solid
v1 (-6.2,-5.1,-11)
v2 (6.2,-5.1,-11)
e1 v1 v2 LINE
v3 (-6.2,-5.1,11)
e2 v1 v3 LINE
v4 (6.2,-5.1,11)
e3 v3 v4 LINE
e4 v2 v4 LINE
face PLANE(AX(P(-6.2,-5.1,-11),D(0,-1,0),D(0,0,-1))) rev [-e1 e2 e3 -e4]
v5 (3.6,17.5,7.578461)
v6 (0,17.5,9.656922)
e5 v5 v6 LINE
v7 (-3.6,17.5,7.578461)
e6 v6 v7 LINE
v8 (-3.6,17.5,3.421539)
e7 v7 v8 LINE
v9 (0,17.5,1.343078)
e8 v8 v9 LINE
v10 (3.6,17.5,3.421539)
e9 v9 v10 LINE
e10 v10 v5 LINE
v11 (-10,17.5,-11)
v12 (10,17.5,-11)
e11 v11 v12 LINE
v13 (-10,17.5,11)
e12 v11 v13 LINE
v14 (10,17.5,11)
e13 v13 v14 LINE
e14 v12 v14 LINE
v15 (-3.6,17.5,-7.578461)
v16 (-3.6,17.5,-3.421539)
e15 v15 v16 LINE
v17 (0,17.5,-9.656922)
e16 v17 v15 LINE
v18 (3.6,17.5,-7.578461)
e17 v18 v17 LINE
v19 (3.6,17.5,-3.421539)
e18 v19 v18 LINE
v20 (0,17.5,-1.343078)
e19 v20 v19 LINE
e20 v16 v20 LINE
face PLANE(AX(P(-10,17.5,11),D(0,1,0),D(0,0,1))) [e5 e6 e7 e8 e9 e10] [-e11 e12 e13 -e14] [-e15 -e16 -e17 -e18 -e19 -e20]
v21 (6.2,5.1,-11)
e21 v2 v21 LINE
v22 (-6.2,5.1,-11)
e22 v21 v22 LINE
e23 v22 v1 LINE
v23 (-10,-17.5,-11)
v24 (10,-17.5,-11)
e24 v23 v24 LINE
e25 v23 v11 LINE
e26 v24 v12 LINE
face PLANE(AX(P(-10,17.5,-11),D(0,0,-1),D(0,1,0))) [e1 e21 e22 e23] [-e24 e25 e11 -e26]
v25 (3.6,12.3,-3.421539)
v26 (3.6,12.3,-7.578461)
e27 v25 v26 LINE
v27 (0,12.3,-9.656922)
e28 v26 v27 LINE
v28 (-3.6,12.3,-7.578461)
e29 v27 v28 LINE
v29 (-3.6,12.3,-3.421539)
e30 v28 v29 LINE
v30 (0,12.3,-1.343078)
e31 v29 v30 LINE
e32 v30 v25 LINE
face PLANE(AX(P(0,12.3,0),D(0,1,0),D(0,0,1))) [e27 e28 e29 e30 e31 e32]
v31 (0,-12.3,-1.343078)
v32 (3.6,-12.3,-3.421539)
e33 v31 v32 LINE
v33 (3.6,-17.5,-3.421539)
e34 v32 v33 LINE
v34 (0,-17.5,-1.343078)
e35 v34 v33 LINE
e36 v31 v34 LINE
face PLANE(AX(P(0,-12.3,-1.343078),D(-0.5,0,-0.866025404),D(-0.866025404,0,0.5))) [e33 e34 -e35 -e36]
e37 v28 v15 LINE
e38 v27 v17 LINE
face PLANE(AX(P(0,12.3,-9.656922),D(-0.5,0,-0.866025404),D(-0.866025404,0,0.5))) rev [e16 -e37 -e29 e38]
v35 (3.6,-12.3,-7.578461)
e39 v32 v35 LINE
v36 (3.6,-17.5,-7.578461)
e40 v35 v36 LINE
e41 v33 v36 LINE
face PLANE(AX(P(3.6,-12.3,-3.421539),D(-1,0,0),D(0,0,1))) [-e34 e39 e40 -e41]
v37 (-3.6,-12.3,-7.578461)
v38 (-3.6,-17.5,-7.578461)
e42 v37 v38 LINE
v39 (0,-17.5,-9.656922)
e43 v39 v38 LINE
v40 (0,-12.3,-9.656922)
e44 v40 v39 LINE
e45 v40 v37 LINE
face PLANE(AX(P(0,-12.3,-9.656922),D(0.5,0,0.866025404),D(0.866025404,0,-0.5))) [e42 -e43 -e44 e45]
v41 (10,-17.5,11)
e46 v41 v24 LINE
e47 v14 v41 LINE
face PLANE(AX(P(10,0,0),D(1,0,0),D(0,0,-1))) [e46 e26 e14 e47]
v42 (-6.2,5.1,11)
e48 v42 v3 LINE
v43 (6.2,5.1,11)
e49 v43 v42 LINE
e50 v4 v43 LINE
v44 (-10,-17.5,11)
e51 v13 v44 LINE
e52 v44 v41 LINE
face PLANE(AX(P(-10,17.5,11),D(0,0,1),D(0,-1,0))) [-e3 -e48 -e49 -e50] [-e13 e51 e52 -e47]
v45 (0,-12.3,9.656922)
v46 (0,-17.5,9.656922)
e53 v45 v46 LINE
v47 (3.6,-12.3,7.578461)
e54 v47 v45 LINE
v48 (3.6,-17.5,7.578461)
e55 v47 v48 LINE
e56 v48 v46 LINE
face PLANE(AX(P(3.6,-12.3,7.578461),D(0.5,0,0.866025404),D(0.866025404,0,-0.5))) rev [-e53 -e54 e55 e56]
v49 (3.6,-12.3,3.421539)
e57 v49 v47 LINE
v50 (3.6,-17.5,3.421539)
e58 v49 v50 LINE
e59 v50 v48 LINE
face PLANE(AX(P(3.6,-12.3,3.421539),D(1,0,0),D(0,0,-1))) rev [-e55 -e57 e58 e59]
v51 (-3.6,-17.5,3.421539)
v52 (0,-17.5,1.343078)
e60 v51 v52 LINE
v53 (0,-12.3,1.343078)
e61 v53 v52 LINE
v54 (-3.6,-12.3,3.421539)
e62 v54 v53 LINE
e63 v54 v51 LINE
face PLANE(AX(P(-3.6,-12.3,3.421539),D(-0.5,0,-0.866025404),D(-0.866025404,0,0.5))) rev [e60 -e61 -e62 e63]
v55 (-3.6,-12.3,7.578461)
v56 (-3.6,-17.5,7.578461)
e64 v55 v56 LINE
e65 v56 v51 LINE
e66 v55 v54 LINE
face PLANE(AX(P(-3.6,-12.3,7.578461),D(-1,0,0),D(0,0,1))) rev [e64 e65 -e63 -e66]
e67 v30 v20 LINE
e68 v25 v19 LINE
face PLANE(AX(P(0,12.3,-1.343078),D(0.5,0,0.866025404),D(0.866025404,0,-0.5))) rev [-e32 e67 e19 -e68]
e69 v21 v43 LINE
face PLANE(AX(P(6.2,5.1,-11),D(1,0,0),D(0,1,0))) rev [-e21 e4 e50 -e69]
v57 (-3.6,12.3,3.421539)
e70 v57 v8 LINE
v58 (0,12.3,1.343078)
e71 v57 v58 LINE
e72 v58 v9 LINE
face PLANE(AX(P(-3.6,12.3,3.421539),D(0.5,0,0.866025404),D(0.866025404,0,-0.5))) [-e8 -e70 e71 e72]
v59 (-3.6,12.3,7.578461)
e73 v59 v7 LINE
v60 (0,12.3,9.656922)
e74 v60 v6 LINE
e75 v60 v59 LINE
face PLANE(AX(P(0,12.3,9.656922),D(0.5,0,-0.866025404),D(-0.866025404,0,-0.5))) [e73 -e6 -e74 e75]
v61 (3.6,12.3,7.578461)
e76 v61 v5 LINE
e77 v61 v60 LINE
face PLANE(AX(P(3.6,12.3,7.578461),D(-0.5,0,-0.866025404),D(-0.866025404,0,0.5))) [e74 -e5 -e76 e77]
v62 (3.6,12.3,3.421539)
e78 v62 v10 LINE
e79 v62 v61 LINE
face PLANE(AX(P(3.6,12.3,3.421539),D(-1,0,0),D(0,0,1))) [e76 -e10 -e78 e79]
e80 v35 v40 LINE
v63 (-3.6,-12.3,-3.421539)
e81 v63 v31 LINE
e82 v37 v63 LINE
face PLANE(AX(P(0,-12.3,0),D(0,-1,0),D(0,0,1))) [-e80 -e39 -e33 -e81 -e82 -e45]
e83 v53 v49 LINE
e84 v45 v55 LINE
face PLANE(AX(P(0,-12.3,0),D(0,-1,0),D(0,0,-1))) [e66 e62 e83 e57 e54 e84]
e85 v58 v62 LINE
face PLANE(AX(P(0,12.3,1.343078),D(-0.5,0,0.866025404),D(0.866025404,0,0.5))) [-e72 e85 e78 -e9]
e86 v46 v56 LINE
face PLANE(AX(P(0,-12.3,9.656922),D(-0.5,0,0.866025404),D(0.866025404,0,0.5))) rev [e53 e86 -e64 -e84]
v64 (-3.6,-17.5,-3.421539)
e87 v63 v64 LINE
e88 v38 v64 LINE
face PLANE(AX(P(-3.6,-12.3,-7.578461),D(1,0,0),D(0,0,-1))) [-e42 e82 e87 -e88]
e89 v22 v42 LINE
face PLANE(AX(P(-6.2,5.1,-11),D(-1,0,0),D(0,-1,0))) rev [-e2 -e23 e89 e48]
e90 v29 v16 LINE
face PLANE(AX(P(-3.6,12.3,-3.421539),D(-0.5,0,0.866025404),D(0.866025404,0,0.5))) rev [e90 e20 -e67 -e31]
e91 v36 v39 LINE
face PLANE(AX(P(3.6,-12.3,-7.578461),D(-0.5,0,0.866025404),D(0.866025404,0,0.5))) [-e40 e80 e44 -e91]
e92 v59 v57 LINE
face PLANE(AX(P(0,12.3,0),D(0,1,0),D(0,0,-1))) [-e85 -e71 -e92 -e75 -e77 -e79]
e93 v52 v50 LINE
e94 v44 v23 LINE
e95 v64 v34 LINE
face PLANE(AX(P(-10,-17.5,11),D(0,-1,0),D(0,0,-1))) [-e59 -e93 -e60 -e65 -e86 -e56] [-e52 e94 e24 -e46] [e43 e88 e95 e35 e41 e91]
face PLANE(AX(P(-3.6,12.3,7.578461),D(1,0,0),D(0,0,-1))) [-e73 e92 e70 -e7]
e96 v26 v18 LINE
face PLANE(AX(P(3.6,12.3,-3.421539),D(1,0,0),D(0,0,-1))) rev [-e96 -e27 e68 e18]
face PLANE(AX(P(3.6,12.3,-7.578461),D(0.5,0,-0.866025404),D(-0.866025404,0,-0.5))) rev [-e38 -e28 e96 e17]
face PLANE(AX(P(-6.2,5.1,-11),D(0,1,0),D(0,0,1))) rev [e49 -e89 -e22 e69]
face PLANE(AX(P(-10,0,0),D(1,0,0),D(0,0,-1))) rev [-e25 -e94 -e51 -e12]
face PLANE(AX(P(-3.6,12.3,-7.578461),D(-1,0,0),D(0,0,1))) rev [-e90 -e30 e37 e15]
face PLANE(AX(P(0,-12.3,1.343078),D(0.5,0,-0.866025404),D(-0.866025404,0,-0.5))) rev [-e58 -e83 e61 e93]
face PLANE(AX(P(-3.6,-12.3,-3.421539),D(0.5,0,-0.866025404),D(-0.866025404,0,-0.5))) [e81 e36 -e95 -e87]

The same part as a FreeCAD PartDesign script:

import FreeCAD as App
import Part
import Sketcher

V = App.Vector
Q = App.Units.Quantity

doc = App.newDocument("Part")
params = doc.addObject("Spreadsheet::Sheet", "Params")
for row, (alias, value) in enumerate([
    ("sketch1_width", "35 mm"),
    ("sketch1_height", "22 mm"),
    ("pad1_length", "10 mm"),
    ("pad1_length2", "10 mm"),
    ("sketch2_width", "12.4 mm"),
    ("sketch2_height", "10.2 mm"),
    ("pocket2_length", "5.2 mm"),
    ("pocket3_length", "5.2 mm"),
], start=1):
    params.set(f"A{row}", alias)
    params.set(f"B{row}", "=" + value)
    params.setAlias(f"B{row}", alias)

body = doc.addObject("PartDesign::Body", "Body")

sketch1 = body.newObject("Sketcher::SketchObject", "Sketch")
sketch1.AttachmentSupport = (doc.getObject("YZ_Plane"), [""])
sketch1.MapMode = "FlatFace"
sketch1.addGeometry(Part.LineSegment(V(18, 11, 0), V(-18, 11, 0)), False)
sketch1.addGeometry(Part.LineSegment(V(-18, 11, 0), V(-18, -11, 0)), False)
sketch1.addGeometry(Part.LineSegment(V(-18, -11, 0), V(18, -11, 0)), False)
sketch1.addGeometry(Part.LineSegment(V(18, -11, 0), V(18, 11, 0)), False)
sketch1.addConstraint(Sketcher.Constraint("Coincident", 0, 2, 1, 1))
sketch1.addConstraint(Sketcher.Constraint("Coincident", 1, 2, 2, 1))
sketch1.addConstraint(Sketcher.Constraint("Coincident", 2, 2, 3, 1))
sketch1.addConstraint(Sketcher.Constraint("Coincident", 3, 2, 0, 1))
sketch1.addConstraint(Sketcher.Constraint("Horizontal", 0))
sketch1.addConstraint(Sketcher.Constraint("Vertical", 1))
sketch1.addConstraint(Sketcher.Constraint("Horizontal", 2))
sketch1.addConstraint(Sketcher.Constraint("Vertical", 3))
sketch1.addConstraint(Sketcher.Constraint("Symmetric", 0, 2, 2, 2, -1, 1))
sketch1.addConstraint(Sketcher.Constraint("DistanceX", 0, 2, 0, 1, Q("35 mm")))
sketch1.addConstraint(Sketcher.Constraint("DistanceY", 1, 2, 1, 1, Q("22 mm")))
sketch1.setExpression("Constraints[9]", "Params.sketch1_width")
sketch1.setExpression("Constraints[10]", "Params.sketch1_height")
pad1 = body.newObject("PartDesign::Pad", "Pad")
pad1.Profile = sketch1
pad1.Type = "TwoLengths"
pad1.setExpression("Length", "Params.pad1_length")
pad1.setExpression("Length2", "Params.pad1_length2")

sketch2 = body.newObject("Sketcher::SketchObject", "Sketch001")
sketch2.AttachmentSupport = (doc.getObject("XY_Plane"), [""])
sketch2.MapMode = "FlatFace"
sketch2.AttachmentOffset = App.Placement(V(0, 0, 11), App.Rotation())
sketch2.addGeometry(Part.LineSegment(V(-6, 5, 0), V(-6, -5, 0)), False)
sketch2.addGeometry(Part.LineSegment(V(-6, -5, 0), V(6, -5, 0)), False)
sketch2.addGeometry(Part.LineSegment(V(6, -5, 0), V(6, 5, 0)), False)
sketch2.addGeometry(Part.LineSegment(V(6, 5, 0), V(-6, 5, 0)), False)
sketch2.addConstraint(Sketcher.Constraint("Coincident", 0, 2, 1, 1))
sketch2.addConstraint(Sketcher.Constraint("Coincident", 1, 2, 2, 1))
sketch2.addConstraint(Sketcher.Constraint("Coincident", 2, 2, 3, 1))
sketch2.addConstraint(Sketcher.Constraint("Coincident", 3, 2, 0, 1))
sketch2.addConstraint(Sketcher.Constraint("Vertical", 0))
sketch2.addConstraint(Sketcher.Constraint("Horizontal", 1))
sketch2.addConstraint(Sketcher.Constraint("Vertical", 2))
sketch2.addConstraint(Sketcher.Constraint("Horizontal", 3))
sketch2.addConstraint(Sketcher.Constraint("Symmetric", 0, 2, 2, 2, -1, 1))
sketch2.addConstraint(Sketcher.Constraint("DistanceX", 1, 1, 1, 2, Q("12.4 mm")))
sketch2.addConstraint(Sketcher.Constraint("DistanceY", 0, 2, 0, 1, Q("10.2 mm")))
sketch2.setExpression("Constraints[9]", "Params.sketch2_width")
sketch2.setExpression("Constraints[10]", "Params.sketch2_height")
pocket1 = body.newObject("PartDesign::Pocket", "Pocket")
pocket1.Profile = sketch2
pocket1.Type = "ThroughAll"
pocket1.Midplane = True

sketch3 = body.newObject("Sketcher::SketchObject", "Sketch002")
sketch3.AttachmentSupport = (doc.getObject("XZ_Plane"), [""])
sketch3.MapMode = "FlatFace"
sketch3.AttachmentOffset = App.Placement(V(0, 0, -17.5), App.Rotation())
sketch3.addGeometry(Part.LineSegment(V(3.6, -7.6, 0), V(0, -9.7, 0)), False)
sketch3.addGeometry(Part.LineSegment(V(0, -9.7, 0), V(-3.6, -7.6, 0)), False)
sketch3.addGeometry(Part.LineSegment(V(-3.6, -7.6, 0), V(-3.6, -3.4, 0)), False)
sketch3.addGeometry(Part.LineSegment(V(-3.6, -3.4, 0), V(0, -1.3, 0)), False)
sketch3.addGeometry(Part.LineSegment(V(0, -1.3, 0), V(3.6, -3.4, 0)), False)
sketch3.addGeometry(Part.LineSegment(V(3.6, -3.4, 0), V(3.6, -7.6, 0)), False)
sketch3.addConstraint(Sketcher.Constraint("Coincident", 0, 2, 1, 1))
sketch3.addConstraint(Sketcher.Constraint("Coincident", 1, 2, 2, 1))
sketch3.addConstraint(Sketcher.Constraint("Coincident", 2, 2, 3, 1))
sketch3.addConstraint(Sketcher.Constraint("Coincident", 3, 2, 4, 1))
sketch3.addConstraint(Sketcher.Constraint("Coincident", 4, 2, 5, 1))
sketch3.addConstraint(Sketcher.Constraint("Coincident", 5, 2, 0, 1))
sketch3.addConstraint(Sketcher.Constraint("Vertical", 2))
sketch3.addConstraint(Sketcher.Constraint("Vertical", 5))
sketch3.addConstraint(Sketcher.Constraint("Symmetric", 2, 2, 4, 2, -2))
sketch3.addConstraint(Sketcher.Constraint("PointOnObject", 0, 2, -2))
sketch3.addConstraint(Sketcher.Constraint("PointOnObject", 3, 2, -2))
sketch3.addConstraint(Sketcher.Constraint("Parallel", 0, 3))
sketch3.addConstraint(Sketcher.Constraint("Parallel", 1, 4))
sketch3.addConstraint(Sketcher.Constraint("Angle", 0, Q("-150 deg")))
sketch3.addConstraint(Sketcher.Constraint("DistanceX", 1, 2, -1, 1, Q("3.6 mm")))
sketch3.addConstraint(Sketcher.Constraint("DistanceY", 2, 1, 2, 2, Q("4.156922 mm")))
sketch3.addConstraint(Sketcher.Constraint("DistanceY", 0, 2, -1, 1, Q("9.656922 mm")))
pocket2 = body.newObject("PartDesign::Pocket", "Pocket001")
pocket2.Profile = sketch3
pocket2.setExpression("Length", "Params.pocket2_length")
pocket2.Reversed = True
doc.recompute()

mirrored = body.newObject("PartDesign::Mirrored", "Mirrored")
mirrored.Originals = [pocket2]
mirrored.MirrorPlane = (doc.getObject("XZ_Plane"), [""])
body.Tip = mirrored
doc.recompute()

mirrored2 = body.newObject("PartDesign::Mirrored", "Mirrored001")
mirrored2.Originals = [pocket2]
mirrored2.MirrorPlane = (doc.getObject("XY_Plane"), [""])
body.Tip = mirrored2

sketch4 = body.newObject("Sketcher::SketchObject", "Sketch003")
sketch4.AttachmentSupport = (doc.getObject("XZ_Plane"), [""])
sketch4.MapMode = "FlatFace"
sketch4.AttachmentOffset = App.Placement(V(0, 0, 17.5), App.Rotation())
sketch4.addGeometry(Part.LineSegment(V(3.6, 7.6, 0), V(0, 9.7, 0)), False)
sketch4.addGeometry(Part.LineSegment(V(0, 9.7, 0), V(-3.6, 7.6, 0)), False)
sketch4.addGeometry(Part.LineSegment(V(-3.6, 7.6, 0), V(-3.6, 3.4, 0)), False)
sketch4.addGeometry(Part.LineSegment(V(-3.6, 3.4, 0), V(0, 1.3, 0)), False)
sketch4.addGeometry(Part.LineSegment(V(0, 1.3, 0), V(3.6, 3.4, 0)), False)
sketch4.addGeometry(Part.LineSegment(V(3.6, 3.4, 0), V(3.6, 7.6, 0)), False)
sketch4.addConstraint(Sketcher.Constraint("Coincident", 0, 2, 1, 1))
sketch4.addConstraint(Sketcher.Constraint("Coincident", 1, 2, 2, 1))
sketch4.addConstraint(Sketcher.Constraint("Coincident", 2, 2, 3, 1))
sketch4.addConstraint(Sketcher.Constraint("Coincident", 3, 2, 4, 1))
sketch4.addConstraint(Sketcher.Constraint("Coincident", 4, 2, 5, 1))
sketch4.addConstraint(Sketcher.Constraint("Coincident", 5, 2, 0, 1))
sketch4.addConstraint(Sketcher.Constraint("Vertical", 2))
sketch4.addConstraint(Sketcher.Constraint("Vertical", 5))
sketch4.addConstraint(Sketcher.Constraint("Symmetric", 2, 2, 4, 2, -2))
sketch4.addConstraint(Sketcher.Constraint("PointOnObject", 0, 2, -2))
sketch4.addConstraint(Sketcher.Constraint("PointOnObject", 3, 2, -2))
sketch4.addConstraint(Sketcher.Constraint("Parallel", 0, 3))
sketch4.addConstraint(Sketcher.Constraint("Parallel", 1, 4))
sketch4.addConstraint(Sketcher.Constraint("Angle", 0, Q("150 deg")))
sketch4.addConstraint(Sketcher.Constraint("DistanceX", 1, 2, -1, 1, Q("3.6 mm")))
sketch4.addConstraint(Sketcher.Constraint("DistanceY", 2, 2, 2, 1, Q("4.156922 mm")))
sketch4.addConstraint(Sketcher.Constraint("DistanceY", -1, 1, 0, 2, Q("9.656922 mm")))
pocket3 = body.newObject("PartDesign::Pocket", "Pocket002")
pocket3.Profile = sketch4
pocket3.setExpression("Length", "Params.pocket3_length")

doc.recompute()
